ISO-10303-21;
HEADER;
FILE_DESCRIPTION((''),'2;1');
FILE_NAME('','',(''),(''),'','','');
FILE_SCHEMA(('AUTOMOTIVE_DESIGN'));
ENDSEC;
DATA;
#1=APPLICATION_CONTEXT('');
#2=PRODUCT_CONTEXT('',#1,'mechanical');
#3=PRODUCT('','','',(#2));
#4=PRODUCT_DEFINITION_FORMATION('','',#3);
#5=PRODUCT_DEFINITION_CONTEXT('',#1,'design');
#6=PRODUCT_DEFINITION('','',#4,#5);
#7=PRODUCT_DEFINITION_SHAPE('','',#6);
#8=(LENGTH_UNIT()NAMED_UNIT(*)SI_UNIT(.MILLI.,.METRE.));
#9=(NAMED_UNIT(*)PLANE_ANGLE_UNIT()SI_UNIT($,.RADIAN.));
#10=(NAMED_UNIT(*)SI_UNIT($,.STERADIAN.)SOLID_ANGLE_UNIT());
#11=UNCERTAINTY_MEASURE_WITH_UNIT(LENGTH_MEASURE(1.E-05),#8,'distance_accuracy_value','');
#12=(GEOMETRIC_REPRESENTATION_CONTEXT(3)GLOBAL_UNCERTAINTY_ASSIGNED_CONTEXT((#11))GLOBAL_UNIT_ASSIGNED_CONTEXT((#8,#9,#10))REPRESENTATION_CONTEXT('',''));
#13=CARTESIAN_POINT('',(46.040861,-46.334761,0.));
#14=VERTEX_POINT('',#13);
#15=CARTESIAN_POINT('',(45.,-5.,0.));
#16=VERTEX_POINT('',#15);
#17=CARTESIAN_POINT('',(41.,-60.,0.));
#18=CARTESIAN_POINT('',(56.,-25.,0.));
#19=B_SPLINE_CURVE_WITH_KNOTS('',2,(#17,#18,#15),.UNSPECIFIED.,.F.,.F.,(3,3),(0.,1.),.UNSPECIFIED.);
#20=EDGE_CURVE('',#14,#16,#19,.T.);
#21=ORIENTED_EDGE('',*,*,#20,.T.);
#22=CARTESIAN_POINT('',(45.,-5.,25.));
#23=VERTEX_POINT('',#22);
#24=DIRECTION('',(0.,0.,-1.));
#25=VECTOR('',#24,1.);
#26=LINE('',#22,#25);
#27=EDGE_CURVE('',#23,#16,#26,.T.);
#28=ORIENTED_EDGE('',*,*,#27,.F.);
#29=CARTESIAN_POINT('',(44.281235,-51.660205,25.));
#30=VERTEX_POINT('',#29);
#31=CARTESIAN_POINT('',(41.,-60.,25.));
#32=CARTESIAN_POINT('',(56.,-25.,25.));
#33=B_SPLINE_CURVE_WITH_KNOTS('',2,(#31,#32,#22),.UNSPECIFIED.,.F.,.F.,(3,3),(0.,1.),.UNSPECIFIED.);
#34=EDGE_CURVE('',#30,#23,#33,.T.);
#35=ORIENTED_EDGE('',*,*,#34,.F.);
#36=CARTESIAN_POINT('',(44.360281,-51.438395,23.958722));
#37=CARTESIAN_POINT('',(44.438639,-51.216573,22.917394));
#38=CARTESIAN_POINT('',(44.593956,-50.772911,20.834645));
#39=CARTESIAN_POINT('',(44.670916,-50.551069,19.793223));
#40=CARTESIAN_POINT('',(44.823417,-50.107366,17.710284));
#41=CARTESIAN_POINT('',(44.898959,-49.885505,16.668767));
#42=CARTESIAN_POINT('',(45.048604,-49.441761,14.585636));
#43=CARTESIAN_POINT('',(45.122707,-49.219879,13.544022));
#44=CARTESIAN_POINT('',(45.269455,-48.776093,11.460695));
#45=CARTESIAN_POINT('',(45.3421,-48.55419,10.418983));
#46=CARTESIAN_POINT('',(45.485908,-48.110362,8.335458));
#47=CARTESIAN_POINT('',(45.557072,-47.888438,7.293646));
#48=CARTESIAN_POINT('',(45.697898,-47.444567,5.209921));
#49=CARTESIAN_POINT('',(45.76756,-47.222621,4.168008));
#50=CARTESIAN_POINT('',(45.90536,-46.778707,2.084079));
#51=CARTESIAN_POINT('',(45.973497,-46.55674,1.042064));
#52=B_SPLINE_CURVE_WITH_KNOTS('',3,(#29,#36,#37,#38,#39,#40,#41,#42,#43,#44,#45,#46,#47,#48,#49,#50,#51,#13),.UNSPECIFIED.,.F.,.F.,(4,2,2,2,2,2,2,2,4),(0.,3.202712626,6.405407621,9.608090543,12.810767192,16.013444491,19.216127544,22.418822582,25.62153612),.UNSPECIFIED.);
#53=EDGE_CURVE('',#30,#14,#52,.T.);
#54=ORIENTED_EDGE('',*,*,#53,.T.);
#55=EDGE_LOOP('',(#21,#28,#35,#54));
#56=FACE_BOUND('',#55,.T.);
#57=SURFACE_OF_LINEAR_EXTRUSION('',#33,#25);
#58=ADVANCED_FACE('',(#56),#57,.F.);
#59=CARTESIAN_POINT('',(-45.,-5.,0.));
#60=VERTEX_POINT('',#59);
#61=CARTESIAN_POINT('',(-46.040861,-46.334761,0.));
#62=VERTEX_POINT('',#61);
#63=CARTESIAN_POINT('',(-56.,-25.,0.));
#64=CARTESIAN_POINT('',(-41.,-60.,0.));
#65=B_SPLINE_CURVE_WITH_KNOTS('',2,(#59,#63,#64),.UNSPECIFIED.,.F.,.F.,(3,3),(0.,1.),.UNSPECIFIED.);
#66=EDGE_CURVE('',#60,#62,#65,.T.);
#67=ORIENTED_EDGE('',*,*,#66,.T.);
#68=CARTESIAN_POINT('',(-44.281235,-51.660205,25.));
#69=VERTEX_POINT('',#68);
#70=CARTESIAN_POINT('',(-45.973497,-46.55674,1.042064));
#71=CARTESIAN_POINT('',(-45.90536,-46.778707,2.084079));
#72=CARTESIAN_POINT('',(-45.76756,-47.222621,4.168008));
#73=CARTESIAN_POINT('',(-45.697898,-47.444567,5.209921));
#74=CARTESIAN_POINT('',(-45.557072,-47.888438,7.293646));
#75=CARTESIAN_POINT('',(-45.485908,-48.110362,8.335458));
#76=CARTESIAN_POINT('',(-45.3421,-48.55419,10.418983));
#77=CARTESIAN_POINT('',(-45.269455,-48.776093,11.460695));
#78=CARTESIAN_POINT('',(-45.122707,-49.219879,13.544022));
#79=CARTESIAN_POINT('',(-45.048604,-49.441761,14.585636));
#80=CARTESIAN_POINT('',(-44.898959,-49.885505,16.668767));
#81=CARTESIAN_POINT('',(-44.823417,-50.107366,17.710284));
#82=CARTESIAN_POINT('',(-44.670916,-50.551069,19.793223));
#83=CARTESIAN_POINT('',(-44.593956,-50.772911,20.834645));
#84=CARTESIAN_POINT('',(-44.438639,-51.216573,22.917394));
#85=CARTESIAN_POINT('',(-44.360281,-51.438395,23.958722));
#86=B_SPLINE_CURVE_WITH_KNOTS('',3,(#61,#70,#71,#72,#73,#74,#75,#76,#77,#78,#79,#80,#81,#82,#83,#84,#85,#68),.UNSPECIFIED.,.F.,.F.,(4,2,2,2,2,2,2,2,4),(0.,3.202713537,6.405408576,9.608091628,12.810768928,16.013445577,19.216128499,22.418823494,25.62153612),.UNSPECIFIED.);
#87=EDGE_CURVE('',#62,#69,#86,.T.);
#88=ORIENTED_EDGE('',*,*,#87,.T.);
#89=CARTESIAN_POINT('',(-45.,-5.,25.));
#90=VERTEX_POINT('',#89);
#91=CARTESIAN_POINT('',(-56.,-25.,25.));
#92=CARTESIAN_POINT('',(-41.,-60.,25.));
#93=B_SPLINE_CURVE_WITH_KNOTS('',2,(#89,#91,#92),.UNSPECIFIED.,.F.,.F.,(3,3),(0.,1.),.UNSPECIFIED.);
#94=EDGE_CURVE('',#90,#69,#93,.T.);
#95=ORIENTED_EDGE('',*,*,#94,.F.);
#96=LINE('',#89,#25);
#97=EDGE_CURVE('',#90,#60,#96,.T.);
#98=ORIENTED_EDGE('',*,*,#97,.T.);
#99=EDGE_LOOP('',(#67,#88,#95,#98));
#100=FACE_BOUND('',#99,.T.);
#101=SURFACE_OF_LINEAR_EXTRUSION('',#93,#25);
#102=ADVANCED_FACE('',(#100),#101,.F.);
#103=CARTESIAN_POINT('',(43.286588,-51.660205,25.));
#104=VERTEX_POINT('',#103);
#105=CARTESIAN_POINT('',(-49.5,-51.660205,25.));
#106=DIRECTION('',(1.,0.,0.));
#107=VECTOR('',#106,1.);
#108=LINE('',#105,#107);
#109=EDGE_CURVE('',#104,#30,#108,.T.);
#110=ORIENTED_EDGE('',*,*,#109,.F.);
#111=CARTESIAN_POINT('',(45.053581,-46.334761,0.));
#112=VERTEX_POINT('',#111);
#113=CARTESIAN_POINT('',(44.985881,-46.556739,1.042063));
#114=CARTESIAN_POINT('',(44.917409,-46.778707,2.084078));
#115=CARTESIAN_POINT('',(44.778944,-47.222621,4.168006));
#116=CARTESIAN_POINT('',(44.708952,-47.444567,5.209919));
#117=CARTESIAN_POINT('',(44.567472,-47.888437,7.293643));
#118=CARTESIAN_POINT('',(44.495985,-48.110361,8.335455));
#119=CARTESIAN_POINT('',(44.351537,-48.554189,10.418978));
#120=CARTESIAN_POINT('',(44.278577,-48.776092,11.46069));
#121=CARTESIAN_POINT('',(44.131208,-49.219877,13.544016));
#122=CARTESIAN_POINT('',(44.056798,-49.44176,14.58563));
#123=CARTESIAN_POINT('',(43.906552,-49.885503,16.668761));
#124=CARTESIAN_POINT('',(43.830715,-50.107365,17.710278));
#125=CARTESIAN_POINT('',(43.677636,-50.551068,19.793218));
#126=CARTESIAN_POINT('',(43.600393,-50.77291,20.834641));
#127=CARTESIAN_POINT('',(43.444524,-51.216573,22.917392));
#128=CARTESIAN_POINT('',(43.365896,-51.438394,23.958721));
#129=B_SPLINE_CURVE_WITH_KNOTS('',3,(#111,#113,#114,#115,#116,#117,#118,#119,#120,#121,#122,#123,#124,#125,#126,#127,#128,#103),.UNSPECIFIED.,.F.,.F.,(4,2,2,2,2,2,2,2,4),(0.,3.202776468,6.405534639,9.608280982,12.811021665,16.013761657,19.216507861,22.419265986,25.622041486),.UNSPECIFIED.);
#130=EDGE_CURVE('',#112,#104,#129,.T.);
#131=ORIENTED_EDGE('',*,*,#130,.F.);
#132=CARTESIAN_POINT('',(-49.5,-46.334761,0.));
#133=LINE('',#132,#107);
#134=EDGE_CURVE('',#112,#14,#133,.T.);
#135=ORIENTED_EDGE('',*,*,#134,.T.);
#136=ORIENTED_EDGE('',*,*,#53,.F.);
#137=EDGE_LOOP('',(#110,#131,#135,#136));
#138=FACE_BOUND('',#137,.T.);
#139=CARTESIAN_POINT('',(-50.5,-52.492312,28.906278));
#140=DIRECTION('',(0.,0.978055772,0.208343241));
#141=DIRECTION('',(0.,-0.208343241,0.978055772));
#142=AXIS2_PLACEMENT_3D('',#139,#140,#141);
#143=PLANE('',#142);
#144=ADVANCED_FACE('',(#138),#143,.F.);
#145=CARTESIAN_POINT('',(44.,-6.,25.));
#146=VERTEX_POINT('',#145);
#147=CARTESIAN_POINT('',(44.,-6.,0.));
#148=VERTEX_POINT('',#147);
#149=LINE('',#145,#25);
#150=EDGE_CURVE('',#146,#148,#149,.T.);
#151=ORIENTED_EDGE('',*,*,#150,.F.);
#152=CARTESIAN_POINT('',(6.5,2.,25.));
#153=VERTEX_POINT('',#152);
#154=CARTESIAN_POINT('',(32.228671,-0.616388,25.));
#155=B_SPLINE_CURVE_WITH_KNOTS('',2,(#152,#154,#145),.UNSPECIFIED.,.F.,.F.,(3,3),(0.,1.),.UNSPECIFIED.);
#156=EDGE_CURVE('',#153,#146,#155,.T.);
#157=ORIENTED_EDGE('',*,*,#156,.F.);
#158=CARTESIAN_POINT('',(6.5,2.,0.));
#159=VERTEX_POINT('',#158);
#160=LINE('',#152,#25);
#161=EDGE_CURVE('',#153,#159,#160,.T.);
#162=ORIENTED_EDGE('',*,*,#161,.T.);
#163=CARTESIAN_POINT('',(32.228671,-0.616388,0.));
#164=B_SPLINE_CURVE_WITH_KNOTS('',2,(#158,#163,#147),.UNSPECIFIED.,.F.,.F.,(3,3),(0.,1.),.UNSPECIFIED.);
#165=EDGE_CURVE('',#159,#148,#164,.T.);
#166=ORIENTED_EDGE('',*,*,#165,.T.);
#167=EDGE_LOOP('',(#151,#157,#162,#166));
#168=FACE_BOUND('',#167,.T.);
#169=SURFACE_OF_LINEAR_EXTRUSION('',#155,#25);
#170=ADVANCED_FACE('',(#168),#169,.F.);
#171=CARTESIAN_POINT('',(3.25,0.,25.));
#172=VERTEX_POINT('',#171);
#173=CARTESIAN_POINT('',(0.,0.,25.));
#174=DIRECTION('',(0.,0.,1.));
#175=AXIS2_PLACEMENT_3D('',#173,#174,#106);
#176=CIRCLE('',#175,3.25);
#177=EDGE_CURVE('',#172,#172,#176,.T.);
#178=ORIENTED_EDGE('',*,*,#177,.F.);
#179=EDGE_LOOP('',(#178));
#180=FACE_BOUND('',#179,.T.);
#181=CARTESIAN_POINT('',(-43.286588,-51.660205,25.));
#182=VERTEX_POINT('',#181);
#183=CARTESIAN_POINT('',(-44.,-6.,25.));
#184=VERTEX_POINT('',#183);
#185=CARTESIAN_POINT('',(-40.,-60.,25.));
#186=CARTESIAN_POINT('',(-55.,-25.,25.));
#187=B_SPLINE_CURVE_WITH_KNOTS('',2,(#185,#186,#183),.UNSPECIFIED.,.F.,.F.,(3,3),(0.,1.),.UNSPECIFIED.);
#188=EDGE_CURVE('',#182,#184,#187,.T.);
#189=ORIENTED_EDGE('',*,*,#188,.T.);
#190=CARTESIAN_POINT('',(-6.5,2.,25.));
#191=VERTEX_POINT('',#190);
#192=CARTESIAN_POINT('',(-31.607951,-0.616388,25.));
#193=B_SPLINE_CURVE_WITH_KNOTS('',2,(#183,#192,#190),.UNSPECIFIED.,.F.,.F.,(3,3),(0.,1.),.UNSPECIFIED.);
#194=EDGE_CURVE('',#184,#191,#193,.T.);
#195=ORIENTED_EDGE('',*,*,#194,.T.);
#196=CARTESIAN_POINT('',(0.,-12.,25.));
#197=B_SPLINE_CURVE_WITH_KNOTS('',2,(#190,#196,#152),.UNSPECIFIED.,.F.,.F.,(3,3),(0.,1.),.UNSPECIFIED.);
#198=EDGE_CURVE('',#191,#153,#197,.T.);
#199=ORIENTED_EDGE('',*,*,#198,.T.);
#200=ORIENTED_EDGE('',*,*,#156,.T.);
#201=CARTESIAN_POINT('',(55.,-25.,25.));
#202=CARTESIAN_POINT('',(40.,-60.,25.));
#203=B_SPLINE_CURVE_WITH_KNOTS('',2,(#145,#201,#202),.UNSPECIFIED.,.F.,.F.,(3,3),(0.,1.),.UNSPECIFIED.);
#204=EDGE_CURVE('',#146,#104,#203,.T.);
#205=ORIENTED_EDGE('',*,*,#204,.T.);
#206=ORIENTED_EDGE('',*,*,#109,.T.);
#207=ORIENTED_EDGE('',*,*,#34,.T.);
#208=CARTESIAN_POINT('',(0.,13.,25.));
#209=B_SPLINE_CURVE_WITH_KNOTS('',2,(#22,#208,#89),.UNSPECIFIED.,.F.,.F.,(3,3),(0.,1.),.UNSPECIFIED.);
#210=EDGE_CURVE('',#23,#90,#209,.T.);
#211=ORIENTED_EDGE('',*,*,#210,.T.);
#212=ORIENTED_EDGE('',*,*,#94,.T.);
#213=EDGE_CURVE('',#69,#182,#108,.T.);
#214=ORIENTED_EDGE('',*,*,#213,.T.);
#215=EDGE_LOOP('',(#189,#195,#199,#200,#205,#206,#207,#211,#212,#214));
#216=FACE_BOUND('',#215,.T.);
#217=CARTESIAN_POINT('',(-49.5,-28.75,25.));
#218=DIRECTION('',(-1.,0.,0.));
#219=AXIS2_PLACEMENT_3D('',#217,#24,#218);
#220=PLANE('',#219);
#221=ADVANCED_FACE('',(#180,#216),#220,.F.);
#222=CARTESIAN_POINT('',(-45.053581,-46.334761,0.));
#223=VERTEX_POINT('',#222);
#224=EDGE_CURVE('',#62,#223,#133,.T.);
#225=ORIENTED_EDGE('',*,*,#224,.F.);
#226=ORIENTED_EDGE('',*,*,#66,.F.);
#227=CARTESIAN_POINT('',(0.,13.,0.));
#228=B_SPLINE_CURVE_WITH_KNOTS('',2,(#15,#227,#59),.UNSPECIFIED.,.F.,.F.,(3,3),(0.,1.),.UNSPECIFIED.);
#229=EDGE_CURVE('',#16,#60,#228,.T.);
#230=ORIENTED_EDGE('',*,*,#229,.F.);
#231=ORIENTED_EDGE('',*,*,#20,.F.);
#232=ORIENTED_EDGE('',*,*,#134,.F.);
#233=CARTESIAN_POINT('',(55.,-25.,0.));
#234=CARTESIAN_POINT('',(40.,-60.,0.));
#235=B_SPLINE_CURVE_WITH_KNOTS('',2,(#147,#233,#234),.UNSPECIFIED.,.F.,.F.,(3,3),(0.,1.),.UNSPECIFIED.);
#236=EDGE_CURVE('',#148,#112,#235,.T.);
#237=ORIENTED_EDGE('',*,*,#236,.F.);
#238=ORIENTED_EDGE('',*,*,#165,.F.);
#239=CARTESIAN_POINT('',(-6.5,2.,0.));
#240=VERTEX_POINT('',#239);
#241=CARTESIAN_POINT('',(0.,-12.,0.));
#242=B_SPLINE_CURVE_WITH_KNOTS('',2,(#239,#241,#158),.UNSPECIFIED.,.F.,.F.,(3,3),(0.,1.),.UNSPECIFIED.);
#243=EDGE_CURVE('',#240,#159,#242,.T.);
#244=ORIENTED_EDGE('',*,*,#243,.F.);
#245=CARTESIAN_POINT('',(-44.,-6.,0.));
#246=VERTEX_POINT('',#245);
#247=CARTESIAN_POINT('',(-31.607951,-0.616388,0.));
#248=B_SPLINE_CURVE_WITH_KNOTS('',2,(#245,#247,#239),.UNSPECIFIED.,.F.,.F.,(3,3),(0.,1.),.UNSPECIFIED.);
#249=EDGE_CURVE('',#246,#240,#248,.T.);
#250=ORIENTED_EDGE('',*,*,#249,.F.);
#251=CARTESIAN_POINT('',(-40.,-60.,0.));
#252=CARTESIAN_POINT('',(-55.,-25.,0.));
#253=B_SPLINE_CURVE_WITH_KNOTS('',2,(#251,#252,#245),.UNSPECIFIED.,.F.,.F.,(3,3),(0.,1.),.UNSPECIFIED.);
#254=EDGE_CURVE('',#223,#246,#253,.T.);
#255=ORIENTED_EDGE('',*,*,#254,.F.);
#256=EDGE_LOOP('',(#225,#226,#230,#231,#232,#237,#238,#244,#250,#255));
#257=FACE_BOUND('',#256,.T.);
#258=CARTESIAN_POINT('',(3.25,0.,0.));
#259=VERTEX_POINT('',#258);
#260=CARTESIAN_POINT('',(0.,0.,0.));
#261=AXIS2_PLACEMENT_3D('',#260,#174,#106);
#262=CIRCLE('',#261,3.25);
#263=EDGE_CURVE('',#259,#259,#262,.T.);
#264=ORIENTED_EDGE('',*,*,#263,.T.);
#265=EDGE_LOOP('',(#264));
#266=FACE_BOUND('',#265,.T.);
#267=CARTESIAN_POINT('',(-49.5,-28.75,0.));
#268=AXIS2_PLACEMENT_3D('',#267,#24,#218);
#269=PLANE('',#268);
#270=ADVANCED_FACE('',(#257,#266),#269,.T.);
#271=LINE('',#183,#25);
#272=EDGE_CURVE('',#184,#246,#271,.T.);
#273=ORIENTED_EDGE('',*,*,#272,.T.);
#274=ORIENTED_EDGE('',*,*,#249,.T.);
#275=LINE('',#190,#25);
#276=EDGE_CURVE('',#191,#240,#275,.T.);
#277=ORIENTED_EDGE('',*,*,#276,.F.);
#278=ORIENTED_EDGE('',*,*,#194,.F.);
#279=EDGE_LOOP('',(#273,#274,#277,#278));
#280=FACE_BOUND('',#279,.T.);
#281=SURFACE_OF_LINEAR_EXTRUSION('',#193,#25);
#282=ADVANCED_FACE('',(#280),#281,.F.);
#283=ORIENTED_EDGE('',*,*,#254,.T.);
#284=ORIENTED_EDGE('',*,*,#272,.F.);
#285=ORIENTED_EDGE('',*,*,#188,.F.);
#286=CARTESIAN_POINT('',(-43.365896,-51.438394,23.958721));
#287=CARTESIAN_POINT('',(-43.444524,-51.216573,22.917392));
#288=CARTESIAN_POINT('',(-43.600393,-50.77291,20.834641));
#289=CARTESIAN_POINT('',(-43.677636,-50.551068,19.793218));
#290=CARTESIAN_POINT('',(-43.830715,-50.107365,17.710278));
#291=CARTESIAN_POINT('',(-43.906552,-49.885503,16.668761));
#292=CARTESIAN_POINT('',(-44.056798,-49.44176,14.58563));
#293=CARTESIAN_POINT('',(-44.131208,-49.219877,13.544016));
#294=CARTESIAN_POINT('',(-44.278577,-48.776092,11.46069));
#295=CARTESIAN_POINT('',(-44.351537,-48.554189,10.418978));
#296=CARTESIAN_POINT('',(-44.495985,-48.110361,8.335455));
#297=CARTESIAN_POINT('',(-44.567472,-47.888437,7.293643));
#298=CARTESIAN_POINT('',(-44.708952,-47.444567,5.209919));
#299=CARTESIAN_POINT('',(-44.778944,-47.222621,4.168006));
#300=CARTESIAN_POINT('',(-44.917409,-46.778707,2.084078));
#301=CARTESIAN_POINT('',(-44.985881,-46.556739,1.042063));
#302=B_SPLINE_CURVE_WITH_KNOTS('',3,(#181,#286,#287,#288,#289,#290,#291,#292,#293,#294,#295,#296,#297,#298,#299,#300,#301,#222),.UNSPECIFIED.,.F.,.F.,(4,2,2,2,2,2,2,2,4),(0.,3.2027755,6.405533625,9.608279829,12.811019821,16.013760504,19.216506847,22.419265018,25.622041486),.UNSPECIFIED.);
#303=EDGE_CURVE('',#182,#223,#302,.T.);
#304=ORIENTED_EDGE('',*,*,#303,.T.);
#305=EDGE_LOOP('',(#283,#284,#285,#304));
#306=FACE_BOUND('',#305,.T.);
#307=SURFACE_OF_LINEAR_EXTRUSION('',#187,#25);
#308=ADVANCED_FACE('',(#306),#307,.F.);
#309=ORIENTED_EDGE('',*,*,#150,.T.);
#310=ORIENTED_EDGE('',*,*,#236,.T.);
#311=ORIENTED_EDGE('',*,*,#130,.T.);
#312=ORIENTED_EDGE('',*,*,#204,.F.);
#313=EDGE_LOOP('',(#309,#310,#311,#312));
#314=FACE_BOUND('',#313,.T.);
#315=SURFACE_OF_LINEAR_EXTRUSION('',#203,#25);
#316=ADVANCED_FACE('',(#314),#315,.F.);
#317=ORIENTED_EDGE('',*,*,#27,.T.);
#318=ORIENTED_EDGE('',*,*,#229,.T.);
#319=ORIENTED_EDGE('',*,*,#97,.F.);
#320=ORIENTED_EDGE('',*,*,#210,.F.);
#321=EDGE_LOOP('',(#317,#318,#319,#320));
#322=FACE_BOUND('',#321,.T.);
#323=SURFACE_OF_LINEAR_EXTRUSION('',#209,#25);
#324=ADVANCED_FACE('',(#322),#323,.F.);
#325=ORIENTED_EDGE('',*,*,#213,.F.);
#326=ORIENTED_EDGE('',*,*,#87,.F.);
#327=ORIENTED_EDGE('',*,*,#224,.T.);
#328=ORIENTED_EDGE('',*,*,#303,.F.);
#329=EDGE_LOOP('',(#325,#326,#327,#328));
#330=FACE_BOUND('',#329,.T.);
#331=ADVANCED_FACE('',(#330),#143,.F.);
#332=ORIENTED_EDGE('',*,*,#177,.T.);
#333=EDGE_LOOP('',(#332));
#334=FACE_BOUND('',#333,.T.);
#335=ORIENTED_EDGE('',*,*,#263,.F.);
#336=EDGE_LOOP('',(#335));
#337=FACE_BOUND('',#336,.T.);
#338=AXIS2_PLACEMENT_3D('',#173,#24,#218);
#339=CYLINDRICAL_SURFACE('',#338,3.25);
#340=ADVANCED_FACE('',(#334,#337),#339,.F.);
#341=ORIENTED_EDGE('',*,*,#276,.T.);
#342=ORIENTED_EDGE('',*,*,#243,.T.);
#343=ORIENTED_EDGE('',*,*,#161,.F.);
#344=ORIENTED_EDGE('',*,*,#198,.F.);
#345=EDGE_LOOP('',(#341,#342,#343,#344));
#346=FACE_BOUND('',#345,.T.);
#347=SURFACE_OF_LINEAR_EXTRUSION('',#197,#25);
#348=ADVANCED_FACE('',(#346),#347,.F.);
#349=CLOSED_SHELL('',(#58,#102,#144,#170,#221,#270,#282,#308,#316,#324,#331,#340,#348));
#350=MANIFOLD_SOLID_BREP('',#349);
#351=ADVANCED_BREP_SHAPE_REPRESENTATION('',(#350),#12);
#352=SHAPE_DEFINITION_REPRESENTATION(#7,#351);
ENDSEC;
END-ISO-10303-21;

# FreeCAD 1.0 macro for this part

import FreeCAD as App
import Part
import Sketcher
Q = App.Units.Quantity


def add_polygon(sketch, points):
    """Adds a closed chain of lines whose ends are joined by coincident constraints."""
    first, n = sketch.GeometryCount, len(points)
    for a, b in zip(points, points[1:] + points[:1]):
        sketch.addGeometry(Part.LineSegment(App.Vector(*a, 0), App.Vector(*b, 0)), False)
    for i in range(n):
        sketch.addConstraint(Sketcher.Constraint("Coincident", first + i, 2, first + (i + 1) % n, 1))

doc = App.newDocument("Part")
body = doc.addObject("PartDesign::Body", "Body")

# Sketch on XY plane
sketch1 = body.newObject("Sketcher::SketchObject", "Sketch")
sketch1.AttachmentSupport = (doc.getObject("XY_Plane"), [""])
sketch1.MapMode = "FlatFace"
sketch1.addGeometry(Part.LineSegment(App.Vector(-41, -60, 0), App.Vector(-40, -60, 0)), False)
sketch1.addGeometry(Part.BSplineCurve([App.Vector(-44, -6, 0), App.Vector(-55, -25, 0), App.Vector(-40, -60, 0)], [3, 3], [0, 1], False, 2, [1, 1, 1], False), False)
sketch1.addGeometry(Part.BSplineCurve([App.Vector(-6.5, 2, 0), App.Vector(-31.607951, -0.616388, 0), App.Vector(-44, -6, 0)], [3, 3], [0, 1], False, 2, [1, 1, 1], False), False)
sketch1.addGeometry(Part.BSplineCurve([App.Vector(-6.5, 2, 0), App.Vector(0, -12, 0), App.Vector(6.5, 2, 0)], [3, 3], [0, 1], False, 2, [1, 1, 1], False), False)
sketch1.addGeometry(Part.BSplineCurve([App.Vector(6.5, 2, 0), App.Vector(32.228671, -0.616388, 0), App.Vector(44, -6, 0)], [3, 3], [0, 1], False, 2, [1, 1, 1], False), False)
sketch1.addGeometry(Part.BSplineCurve([App.Vector(44, -6, 0), App.Vector(55, -25, 0), App.Vector(40, -60, 0)], [3, 3], [0, 1], False, 2, [1, 1, 1], False), False)
sketch1.addGeometry(Part.LineSegment(App.Vector(40, -60, 0), App.Vector(41, -60, 0)), False)
sketch1.addGeometry(Part.BSplineCurve([App.Vector(45, -5, 0), App.Vector(56, -25, 0), App.Vector(41, -60, 0)], [3, 3], [0, 1], False, 2, [1, 1, 1], False), False)
sketch1.addGeometry(Part.BSplineCurve([App.Vector(-45, -5, 0), App.Vector(0, 13, 0), App.Vector(45, -5, 0)], [3, 3], [0, 1], False, 2, [1, 1, 1], False), False)
sketch1.addGeometry(Part.BSplineCurve([App.Vector(-45, -5, 0), App.Vector(-56, -25, 0), App.Vector(-41, -60, 0)], [3, 3], [0, 1], False, 2, [1, 1, 1], False), False)
sketch1.addGeometry(Part.Circle(App.Vector(0, 0, 0), App.Vector(0, 0, 1), 3.25), False)
sketch1.addConstraint(Sketcher.Constraint("Block", 1))
sketch1.addConstraint(Sketcher.Constraint("Block", 2))
sketch1.addConstraint(Sketcher.Constraint("Block", 3))
sketch1.addConstraint(Sketcher.Constraint("Block", 4))
sketch1.addConstraint(Sketcher.Constraint("Block", 5))
sketch1.addConstraint(Sketcher.Constraint("Block", 7))
sketch1.addConstraint(Sketcher.Constraint("Block", 8))
sketch1.addConstraint(Sketcher.Constraint("Block", 9))
sketch1.addConstraint(Sketcher.Constraint("Coincident", 0, 2, 1, 2))
sketch1.addConstraint(Sketcher.Constraint("Coincident", 5, 2, 6, 1))
sketch1.addConstraint(Sketcher.Constraint("Coincident", 6, 2, 7, 2))
sketch1.addConstraint(Sketcher.Constraint("Coincident", 9, 2, 0, 1))
sketch1.addConstraint(Sketcher.Constraint("Coincident", 10, 3, -1, 1))
sketch1.addConstraint(Sketcher.Constraint("Diameter", 10, Q("6.5 mm")))
pad1 = body.newObject("PartDesign::Pad", "Pad")
pad1.Profile = sketch1
pad1.Length = 25

# Sketch on YZ plane
sketch2 = body.newObject("Sketcher::SketchObject", "Sketch001")
sketch2.AttachmentSupport = (doc.getObject("YZ_Plane"), [""])
sketch2.MapMode = "FlatFace"
add_polygon(sketch2, [(-45.5, -4.1), (-52.5, 28.9), (-68.4, 30.4), (-70.6, 26.9), (-63.1, -5.9)])  # lines 0-4
sketch2.addConstraint(Sketcher.Constraint("DistanceY", 2, 2, 0, 2, Q("2.005102 mm")))
sketch2.addConstraint(Sketcher.Constraint("DistanceX", 3, 2, 4, 2, Q("17.6155 mm")))
sketch2.addConstraint(Sketcher.Constraint("Distance", 0, Q("33.713278 mm")))
sketch2.addConstraint(Sketcher.Constraint("DistanceX", 0, 2, -1, 1, Q("52.492312 mm")))
sketch2.addConstraint(Sketcher.Constraint("DistanceX", 3, 2, -1, 1, Q("63.083878 mm")))
sketch2.addConstraint(Sketcher.Constraint("DistanceY", 4, 2, -1, 1, Q("4.067189 mm")))
sketch2.addConstraint(Sketcher.Constraint("DistanceY", 0, 2, 1, 2, Q("1.478629 mm")))
sketch2.addConstraint(Sketcher.Constraint("DistanceX", 1, 2, 3, 2, Q("5.29761 mm")))
sketch2.addConstraint(Sketcher.Constraint("Distance", 2, Q("4.114908 mm")))
sketch2.addConstraint(Sketcher.Constraint("Distance", 3, Q("33.680064 mm")))
pocket1 = body.newObject("PartDesign::Pocket", "Pocket")
pocket1.Profile = sketch2
pocket1.Type = "ThroughAll"
pocket1.Midplane = True

doc.recompute()
